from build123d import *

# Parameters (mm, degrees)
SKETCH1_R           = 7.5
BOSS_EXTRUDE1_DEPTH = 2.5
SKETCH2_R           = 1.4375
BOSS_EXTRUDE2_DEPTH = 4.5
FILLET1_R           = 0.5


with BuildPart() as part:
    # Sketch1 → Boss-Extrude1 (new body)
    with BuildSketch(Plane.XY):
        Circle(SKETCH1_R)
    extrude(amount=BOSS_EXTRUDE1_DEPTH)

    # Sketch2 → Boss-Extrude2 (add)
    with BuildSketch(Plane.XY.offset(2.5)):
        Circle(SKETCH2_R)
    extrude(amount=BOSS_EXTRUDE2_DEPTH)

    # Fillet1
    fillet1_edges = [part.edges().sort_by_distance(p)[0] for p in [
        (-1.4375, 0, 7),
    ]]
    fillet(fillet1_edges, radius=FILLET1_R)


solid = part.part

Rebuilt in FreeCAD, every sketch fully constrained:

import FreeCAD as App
import Part
import Sketcher

V = App.Vector


def edges_at(feature, points):
    """Names of the edges that pass closest to the given points."""
    edges = feature.Shape.Edges
    near = lambda p: min(range(len(edges)), key=lambda i: edges[i].distToShape(Part.Vertex(*p))[0])
    return sorted({f"Edge{near(p) + 1}" for p in points})

doc = App.newDocument("Part")
body = doc.addObject("PartDesign::Body", "Body")

sketch1 = body.newObject("Sketcher::SketchObject", "Sketch")
sketch1.AttachmentSupport = (doc.getObject("XY_Plane"), [""])
sketch1.MapMode = "FlatFace"
sketch1.addGeometry(Part.Circle(V(0, 0, 0), V(0, 0, 1), 7.5), False)
sketch1.addConstraint([
    Sketcher.Constraint("Coincident", 0, 3, -1, 1),
    Sketcher.Constraint("Diameter", 0, 15.0),
])
pad1 = body.newObject("PartDesign::Pad", "Pad")
pad1.Profile = sketch1
pad1.Length = 2.5

sketch2 = body.newObject("Sketcher::SketchObject", "Sketch001")
sketch2.AttachmentSupport = (doc.getObject("XY_Plane"), [""])
sketch2.MapMode = "FlatFace"
sketch2.AttachmentOffset = App.Placement(V(0, 0, 2.5), App.Rotation())
sketch2.addGeometry(Part.Circle(V(0, 0, 0), V(0, 0, 1), 1.4375), False)
sketch2.addConstraint([
    Sketcher.Constraint("Coincident", 0, 3, -1, 1),
    Sketcher.Constraint("Diameter", 0, 2.875),
])
pad2 = body.newObject("PartDesign::Pad", "Pad001")
pad2.Profile = sketch2
pad2.Length = 4.5
doc.recompute()

fillet = body.newObject("PartDesign::Fillet", "Fillet")
fillet.Base = (pad2, edges_at(pad2, [(-1.438, 0, 7)]))
fillet.Radius = 0.5

doc.recompute()
